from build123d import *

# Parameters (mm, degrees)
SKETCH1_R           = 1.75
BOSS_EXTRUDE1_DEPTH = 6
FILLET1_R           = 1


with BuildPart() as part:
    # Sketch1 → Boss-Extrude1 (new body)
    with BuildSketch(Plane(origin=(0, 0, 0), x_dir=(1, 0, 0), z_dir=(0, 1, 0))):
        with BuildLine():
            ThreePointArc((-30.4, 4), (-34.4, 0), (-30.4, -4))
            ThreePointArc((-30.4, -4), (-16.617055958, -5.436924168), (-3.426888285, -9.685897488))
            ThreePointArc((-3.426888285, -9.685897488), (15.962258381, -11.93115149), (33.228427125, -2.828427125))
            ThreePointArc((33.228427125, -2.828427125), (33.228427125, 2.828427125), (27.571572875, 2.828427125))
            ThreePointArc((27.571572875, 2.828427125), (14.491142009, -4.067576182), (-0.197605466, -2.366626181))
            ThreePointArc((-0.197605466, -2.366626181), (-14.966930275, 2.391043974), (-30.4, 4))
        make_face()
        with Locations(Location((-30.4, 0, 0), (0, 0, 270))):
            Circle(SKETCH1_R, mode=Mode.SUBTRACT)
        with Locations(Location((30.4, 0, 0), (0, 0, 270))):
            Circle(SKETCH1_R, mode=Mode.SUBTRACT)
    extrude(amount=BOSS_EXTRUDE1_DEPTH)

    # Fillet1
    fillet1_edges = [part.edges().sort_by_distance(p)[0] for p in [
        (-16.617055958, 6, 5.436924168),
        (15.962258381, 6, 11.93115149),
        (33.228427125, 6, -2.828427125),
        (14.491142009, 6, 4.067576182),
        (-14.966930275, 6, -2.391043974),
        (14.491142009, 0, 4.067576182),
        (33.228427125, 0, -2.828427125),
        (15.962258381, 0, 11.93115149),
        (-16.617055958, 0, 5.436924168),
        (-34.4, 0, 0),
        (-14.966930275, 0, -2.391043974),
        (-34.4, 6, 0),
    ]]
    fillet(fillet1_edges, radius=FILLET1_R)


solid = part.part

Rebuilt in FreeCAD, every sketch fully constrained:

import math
import FreeCAD as App
import Part
import Sketcher

V = App.Vector


def edges_at(feature, points):
    """Names of the edges that pass closest to the given points."""
    edges = feature.Shape.Edges
    near = lambda p: min(range(len(edges)), key=lambda i: edges[i].distToShape(Part.Vertex(*p))[0])
    return sorted({f"Edge{near(p) + 1}" for p in points})

doc = App.newDocument("Part")
body = doc.addObject("PartDesign::Body", "Body")

# Sketch on XZ plane
sketch1 = body.newObject("Sketcher::SketchObject", "Sketch")
sketch1.AttachmentSupport = (doc.getObject("XZ_Plane"), [""])
sketch1.MapMode = "FlatFace"
sketch1.addGeometry(Part.ArcOfCircle(Part.Circle(V(-30.4, 0, 0), V(0, 0, 1), 4), math.radians(90), math.radians(270)), False)
sketch1.addGeometry(Part.ArcOfCircle(Part.Circle(V(-30.4, 70.8, 0), V(0, 0, 1), 66.8), math.radians(-90), math.radians(-66)), False)
sketch1.addGeometry(Part.ArcOfCircle(Part.Circle(V(9.9, -20.5, 0), V(0, 0, 1), 33), math.radians(45), math.radians(114)), False)
sketch1.addGeometry(Part.ArcOfCircle(Part.Circle(V(30.4, 0, 0), V(0, 0, 1), 4), math.radians(-135), math.radians(45)), False)
sketch1.addGeometry(Part.ArcOfCircle(Part.Circle(V(9.9, -20.5, 0), V(0, 0, 1), 25), math.radians(45), math.radians(114)), False)
sketch1.addGeometry(Part.ArcOfCircle(Part.Circle(V(-30.4, 70.8, 0), V(0, 0, 1), 74.8), math.radians(-90), math.radians(-66)), False)
sketch1.addGeometry(Part.Circle(V(-30.4, 0, 0), V(0, 0, 1), 1.8), False)
sketch1.addGeometry(Part.Circle(V(30.4, 0, 0), V(0, 0, 1), 1.8), False)
sketch1.addConstraint(Sketcher.Constraint("Tangent", 0, 1, 1, 1))
sketch1.addConstraint(Sketcher.Constraint("Tangent", 1, 2, 2, 2))
sketch1.addConstraint(Sketcher.Constraint("Tangent", 2, 1, 3, 2))
sketch1.addConstraint(Sketcher.Constraint("Tangent", 3, 1, 4, 1))
sketch1.addConstraint(Sketcher.Constraint("Tangent", 4, 2, 5, 2))
sketch1.addConstraint(Sketcher.Constraint("Tangent", 5, 1, 0, 2))
sketch1.addConstraint(Sketcher.Constraint("Coincident", 4, 3, 2, 3))
sketch1.addConstraint(Sketcher.Constraint("Coincident", 5, 3, 1, 3))
sketch1.addConstraint(Sketcher.Constraint("Coincident", 6, 3, 0, 3))
sketch1.addConstraint(Sketcher.Constraint("Coincident", 7, 3, 3, 3))
sketch1.addConstraint(Sketcher.Constraint("Equal", 6, 7))
sketch1.addConstraint(Sketcher.Constraint("Symmetric", 0, 3, 3, 3, -1, 1))
sketch1.addConstraint(Sketcher.Constraint("PointOnObject", 0, 3, -1))
sketch1.addConstraint(Sketcher.Constraint("Vertical", 0, 3, 1, 3))
sketch1.addConstraint(Sketcher.Constraint("Radius", 0, 4.0))
sketch1.addConstraint(Sketcher.Constraint("Radius", 2, 33.0))
sketch1.addConstraint(Sketcher.Constraint("Diameter", 6, 3.5))
sketch1.addConstraint(Sketcher.Constraint("DistanceX", 0, 3, -1, 1, 30.4))
sketch1.addConstraint(Sketcher.Constraint("Radius", 1, 66.821305))
pad1 = body.newObject("PartDesign::Pad", "Pad")
pad1.Profile = sketch1
pad1.Length = 6
pad1.Reversed = True
doc.recompute()

fillet = body.newObject("PartDesign::Fillet", "Fillet")
fillet.Base = (pad1, edges_at(pad1, [
    (-16.617, 6, 5.437),
    (15.962, 6, 11.931),
    (33.228, 6, -2.828),
    (14.491, 6, 4.068),
    (-14.967, 6, -2.391),
    (14.491, 0, 4.068),
    (33.228, 0, -2.828),
    (15.962, 0, 11.931),
    (-16.617, 0, 5.437),
    (-34.4, 0, 0),
    (-14.967, 0, -2.391),
    (-34.4, 6, 0),
]))
fillet.Radius = 1

doc.recompute()
